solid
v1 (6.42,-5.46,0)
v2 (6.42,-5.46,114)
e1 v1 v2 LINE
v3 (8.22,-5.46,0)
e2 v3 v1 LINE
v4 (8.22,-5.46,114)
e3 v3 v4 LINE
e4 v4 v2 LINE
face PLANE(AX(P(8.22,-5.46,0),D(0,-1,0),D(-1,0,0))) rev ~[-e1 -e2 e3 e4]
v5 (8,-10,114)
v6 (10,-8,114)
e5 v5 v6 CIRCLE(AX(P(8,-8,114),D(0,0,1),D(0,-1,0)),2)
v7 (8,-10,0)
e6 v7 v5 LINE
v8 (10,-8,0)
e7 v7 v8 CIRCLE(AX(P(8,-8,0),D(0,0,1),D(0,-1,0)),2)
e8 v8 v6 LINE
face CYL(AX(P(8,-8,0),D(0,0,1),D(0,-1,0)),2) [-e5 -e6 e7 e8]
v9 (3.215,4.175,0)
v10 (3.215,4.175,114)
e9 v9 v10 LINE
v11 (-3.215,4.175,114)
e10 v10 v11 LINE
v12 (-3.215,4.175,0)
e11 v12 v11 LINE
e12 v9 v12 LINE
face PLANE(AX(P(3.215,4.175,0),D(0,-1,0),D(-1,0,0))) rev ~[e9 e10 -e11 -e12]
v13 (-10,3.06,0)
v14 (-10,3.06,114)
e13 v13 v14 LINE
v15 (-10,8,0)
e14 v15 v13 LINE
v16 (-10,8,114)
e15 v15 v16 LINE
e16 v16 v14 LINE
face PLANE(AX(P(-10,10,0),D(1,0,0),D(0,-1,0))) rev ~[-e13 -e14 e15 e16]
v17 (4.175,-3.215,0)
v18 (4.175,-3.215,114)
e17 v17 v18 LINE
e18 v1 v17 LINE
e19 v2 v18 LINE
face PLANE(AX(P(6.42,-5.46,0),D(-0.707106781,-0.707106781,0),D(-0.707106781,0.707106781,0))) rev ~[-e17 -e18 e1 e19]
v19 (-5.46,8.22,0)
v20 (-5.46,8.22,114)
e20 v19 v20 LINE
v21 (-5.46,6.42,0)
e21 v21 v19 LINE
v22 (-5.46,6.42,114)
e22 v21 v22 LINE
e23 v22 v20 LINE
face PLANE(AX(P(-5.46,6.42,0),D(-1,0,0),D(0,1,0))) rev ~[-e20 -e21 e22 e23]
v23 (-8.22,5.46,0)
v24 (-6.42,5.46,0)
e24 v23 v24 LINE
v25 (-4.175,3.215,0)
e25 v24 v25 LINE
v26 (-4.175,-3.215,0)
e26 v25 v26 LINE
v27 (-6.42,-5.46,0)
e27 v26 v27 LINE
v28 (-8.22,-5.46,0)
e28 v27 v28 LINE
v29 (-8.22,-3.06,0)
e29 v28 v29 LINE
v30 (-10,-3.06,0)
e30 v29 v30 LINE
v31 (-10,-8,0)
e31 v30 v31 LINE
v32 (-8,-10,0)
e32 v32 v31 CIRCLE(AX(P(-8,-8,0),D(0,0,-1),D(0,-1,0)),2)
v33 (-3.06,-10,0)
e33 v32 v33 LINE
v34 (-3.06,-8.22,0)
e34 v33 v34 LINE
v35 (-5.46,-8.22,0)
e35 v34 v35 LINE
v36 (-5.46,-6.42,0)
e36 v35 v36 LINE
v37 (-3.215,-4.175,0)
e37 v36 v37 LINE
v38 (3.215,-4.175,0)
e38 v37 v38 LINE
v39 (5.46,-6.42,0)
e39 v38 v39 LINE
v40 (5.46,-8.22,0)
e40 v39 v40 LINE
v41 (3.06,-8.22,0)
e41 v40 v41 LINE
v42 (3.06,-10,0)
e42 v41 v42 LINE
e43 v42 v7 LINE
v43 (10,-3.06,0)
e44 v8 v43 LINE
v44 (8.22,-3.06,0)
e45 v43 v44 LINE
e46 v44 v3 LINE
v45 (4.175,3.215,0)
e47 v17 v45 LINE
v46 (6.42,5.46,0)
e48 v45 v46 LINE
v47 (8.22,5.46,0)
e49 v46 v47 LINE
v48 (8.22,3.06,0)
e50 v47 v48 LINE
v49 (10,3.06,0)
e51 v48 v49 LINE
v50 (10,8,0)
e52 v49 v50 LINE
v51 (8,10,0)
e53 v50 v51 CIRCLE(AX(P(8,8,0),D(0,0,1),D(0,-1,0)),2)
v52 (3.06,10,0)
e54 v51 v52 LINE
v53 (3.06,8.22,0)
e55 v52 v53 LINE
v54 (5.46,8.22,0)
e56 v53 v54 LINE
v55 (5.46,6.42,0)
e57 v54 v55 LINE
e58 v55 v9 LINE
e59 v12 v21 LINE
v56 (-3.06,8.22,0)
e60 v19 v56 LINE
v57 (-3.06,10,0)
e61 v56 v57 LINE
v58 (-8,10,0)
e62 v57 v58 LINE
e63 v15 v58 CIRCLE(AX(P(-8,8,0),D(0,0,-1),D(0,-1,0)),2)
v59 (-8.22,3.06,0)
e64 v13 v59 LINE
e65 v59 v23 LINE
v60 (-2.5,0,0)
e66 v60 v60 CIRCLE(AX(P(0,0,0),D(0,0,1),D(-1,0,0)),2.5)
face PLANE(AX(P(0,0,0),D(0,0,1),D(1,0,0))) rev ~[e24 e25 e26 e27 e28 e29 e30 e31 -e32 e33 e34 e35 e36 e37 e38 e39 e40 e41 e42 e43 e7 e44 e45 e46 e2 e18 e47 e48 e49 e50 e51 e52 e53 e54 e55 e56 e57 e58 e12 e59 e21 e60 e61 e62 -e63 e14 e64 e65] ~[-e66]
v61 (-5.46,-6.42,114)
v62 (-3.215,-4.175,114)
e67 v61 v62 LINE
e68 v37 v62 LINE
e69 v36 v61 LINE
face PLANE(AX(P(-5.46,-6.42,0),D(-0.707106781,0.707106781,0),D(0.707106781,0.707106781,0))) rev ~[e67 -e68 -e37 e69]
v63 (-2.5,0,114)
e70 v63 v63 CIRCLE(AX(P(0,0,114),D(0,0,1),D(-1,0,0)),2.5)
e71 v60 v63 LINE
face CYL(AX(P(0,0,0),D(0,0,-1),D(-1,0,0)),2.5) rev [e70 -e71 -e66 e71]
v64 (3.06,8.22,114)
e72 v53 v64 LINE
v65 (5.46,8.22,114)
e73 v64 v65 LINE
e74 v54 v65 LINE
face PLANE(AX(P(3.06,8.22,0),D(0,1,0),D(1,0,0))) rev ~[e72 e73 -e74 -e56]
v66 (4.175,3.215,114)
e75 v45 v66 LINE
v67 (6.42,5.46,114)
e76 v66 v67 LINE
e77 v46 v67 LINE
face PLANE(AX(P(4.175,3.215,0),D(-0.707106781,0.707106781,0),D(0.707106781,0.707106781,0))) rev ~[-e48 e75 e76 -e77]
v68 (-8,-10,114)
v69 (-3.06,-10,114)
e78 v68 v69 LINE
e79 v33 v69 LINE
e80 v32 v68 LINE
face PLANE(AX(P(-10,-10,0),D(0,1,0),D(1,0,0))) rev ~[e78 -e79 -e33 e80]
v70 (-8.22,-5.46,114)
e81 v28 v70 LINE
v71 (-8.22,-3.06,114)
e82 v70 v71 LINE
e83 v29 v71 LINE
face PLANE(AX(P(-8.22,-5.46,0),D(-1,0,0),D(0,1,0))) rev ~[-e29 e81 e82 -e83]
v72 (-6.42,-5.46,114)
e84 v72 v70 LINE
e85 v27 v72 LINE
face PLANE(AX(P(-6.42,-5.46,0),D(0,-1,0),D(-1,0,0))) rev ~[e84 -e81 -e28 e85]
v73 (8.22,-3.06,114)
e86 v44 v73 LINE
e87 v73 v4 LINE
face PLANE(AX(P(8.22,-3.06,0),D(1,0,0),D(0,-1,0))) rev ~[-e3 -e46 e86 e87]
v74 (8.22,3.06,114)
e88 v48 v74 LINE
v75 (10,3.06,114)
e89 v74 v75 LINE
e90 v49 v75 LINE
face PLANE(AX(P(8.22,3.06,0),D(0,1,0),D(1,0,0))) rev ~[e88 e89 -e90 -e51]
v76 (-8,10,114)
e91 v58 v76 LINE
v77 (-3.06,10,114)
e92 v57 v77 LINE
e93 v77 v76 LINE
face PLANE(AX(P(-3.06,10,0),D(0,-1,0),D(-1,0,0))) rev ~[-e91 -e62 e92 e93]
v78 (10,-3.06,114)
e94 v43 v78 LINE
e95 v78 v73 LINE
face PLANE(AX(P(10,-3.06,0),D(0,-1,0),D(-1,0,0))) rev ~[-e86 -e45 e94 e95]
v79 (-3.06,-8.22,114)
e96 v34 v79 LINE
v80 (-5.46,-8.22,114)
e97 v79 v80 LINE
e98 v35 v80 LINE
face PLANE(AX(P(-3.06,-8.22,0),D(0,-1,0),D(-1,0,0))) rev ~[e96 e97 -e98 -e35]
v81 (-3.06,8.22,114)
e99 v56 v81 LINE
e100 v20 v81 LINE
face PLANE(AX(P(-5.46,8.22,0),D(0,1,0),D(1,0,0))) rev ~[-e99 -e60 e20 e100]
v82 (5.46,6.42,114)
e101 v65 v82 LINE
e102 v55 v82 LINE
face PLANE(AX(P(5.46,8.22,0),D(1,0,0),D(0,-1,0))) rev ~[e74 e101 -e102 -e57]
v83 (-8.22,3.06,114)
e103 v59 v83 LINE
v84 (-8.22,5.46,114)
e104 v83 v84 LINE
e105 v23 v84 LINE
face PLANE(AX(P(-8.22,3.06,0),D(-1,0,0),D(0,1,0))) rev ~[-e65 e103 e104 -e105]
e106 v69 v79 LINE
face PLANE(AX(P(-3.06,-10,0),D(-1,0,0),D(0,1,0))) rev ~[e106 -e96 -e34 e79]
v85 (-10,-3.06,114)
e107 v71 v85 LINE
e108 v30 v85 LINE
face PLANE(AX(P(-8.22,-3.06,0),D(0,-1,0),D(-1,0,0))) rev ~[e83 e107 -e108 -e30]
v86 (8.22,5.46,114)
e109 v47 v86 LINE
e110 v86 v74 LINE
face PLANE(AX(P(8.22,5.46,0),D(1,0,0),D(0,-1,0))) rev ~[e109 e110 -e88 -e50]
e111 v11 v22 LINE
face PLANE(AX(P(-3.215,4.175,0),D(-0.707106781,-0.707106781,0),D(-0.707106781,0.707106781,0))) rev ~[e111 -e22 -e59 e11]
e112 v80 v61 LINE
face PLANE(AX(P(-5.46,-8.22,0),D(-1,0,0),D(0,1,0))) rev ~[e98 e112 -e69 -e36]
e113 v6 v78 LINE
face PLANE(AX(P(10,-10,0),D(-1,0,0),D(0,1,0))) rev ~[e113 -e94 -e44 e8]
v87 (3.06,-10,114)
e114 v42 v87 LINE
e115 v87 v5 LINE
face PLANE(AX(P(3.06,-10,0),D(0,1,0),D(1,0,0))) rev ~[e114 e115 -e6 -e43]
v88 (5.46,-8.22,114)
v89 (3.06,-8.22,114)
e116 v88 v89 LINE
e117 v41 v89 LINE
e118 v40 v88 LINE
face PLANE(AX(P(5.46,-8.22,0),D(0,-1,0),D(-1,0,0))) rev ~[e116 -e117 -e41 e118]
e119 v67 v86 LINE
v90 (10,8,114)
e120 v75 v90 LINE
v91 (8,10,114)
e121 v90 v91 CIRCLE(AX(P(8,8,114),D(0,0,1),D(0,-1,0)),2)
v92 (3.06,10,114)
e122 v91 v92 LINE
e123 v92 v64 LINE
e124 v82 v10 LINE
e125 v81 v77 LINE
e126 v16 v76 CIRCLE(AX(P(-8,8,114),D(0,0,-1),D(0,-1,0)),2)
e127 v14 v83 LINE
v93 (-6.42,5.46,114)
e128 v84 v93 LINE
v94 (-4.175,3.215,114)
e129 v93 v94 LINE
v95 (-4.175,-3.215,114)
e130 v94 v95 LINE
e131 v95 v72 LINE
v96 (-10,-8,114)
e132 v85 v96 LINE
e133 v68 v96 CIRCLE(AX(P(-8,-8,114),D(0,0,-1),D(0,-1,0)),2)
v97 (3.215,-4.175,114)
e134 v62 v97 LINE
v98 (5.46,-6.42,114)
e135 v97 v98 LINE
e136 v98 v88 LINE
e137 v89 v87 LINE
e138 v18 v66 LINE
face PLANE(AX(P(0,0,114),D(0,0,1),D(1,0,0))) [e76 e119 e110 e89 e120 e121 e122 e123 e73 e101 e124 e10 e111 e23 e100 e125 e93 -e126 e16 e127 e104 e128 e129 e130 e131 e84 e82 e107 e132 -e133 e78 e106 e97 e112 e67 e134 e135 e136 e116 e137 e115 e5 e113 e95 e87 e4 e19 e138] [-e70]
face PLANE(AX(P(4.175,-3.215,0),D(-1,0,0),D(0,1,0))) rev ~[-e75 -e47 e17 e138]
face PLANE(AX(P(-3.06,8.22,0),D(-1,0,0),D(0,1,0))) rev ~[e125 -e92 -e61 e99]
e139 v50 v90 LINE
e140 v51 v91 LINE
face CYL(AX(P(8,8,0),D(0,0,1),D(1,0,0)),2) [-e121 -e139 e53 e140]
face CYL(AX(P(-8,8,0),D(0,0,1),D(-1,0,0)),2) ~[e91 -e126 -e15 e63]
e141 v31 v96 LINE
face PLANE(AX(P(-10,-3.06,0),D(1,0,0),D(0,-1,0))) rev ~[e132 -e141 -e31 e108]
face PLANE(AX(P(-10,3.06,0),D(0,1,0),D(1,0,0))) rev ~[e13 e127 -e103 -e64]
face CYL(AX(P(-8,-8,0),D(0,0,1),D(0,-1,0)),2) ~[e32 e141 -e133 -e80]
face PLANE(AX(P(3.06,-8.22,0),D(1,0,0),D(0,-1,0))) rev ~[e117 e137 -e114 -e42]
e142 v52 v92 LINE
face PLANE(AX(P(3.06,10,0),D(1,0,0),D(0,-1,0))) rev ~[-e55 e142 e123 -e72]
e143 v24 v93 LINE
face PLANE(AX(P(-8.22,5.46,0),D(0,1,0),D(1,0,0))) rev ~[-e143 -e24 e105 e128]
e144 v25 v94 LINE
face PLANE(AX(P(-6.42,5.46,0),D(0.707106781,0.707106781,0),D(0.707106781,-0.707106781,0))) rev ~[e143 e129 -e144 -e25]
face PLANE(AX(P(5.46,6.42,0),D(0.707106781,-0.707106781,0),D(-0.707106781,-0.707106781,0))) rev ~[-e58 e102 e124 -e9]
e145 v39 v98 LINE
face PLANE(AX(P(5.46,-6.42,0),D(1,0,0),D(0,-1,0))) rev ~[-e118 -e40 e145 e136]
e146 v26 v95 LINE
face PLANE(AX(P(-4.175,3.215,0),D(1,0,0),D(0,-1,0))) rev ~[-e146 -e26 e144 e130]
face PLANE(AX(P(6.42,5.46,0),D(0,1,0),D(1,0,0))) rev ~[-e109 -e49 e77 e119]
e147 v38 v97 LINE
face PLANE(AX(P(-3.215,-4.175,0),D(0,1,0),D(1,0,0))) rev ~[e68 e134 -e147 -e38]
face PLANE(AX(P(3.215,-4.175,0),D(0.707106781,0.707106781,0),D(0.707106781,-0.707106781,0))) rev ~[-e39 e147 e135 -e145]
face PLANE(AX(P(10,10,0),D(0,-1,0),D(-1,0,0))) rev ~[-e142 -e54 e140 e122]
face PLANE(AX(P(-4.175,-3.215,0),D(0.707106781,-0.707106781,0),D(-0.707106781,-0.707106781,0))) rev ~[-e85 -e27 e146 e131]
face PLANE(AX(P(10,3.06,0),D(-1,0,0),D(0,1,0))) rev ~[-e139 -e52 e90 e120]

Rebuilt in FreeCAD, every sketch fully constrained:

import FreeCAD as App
import Part
import Sketcher
Q = App.Units.Quantity


def edges_at(feature, points):
    """Names of the edges that pass closest to the given points."""
    edges = feature.Shape.Edges
    near = lambda p: min(range(len(edges)), key=lambda i: edges[i].distToShape(Part.Vertex(*p))[0])
    return sorted({f"Edge{near(p) + 1}" for p in points})


def add_polygon(sketch, points):
    """Adds a closed chain of lines whose ends are joined by coincident constraints."""
    first, n = sketch.GeometryCount, len(points)
    for a, b in zip(points, points[1:] + points[:1]):
        sketch.addGeometry(Part.LineSegment(App.Vector(*a, 0), App.Vector(*b, 0)), False)
    for i in range(n):
        sketch.addConstraint(Sketcher.Constraint("Coincident", first + i, 2, first + (i + 1) % n, 1))

doc = App.newDocument("Part")
body = doc.addObject("PartDesign::Body", "Body")

sketch1 = body.newObject("Sketcher::SketchObject", "Sketch")
sketch1.AttachmentSupport = (doc.getObject("XY_Plane"), [""])
sketch1.MapMode = "FlatFace"
add_polygon(sketch1, [(-5.46, -6.42), (-3.215, -4.175), (3.215, -4.175), (5.46, -6.42), (5.46, -8.22), (3.06, -8.22), (3.06, -10), (10, -10), (10, -3.06), (8.22, -3.06), (8.22, -5.46), (6.42, -5.46), (4.175, -3.215), (4.175, 3.215), (6.42, 5.46), (8.22, 5.46), (8.22, 3.06), (10, 3.06), (10, 10), (3.06, 10), (3.06, 8.22), (5.46, 8.22), (5.46, 6.42), (3.215, 4.175), (-3.215, 4.175), (-5.46, 6.42), (-5.46, 8.22), (-3.06, 8.22), (-3.06, 10), (-10, 10), (-10, 3.06), (-8.22, 3.06), (-8.22, 5.46), (-6.42, 5.46), (-4.175, 3.215), (-4.175, -3.215), (-6.42, -5.46), (-8.22, -5.46), (-8.22, -3.06), (-10, -3.06), (-10, -10), (-3.06, -10), (-3.06, -8.22), (-5.46, -8.22)])
sketch1.addGeometry(Part.Circle(App.Vector(0, 0, 0), App.Vector(0, 0, 1), 2.5), False)
sketch1.addConstraint([
    Sketcher.Constraint("Horizontal", 1),
    Sketcher.Constraint("Vertical", 3),
    Sketcher.Constraint("Horizontal", 4),
    Sketcher.Constraint("Vertical", 5),
    Sketcher.Constraint("Horizontal", 6),
    Sketcher.Constraint("Vertical", 7),
    Sketcher.Constraint("Horizontal", 8),
    Sketcher.Constraint("Vertical", 9),
    Sketcher.Constraint("Horizontal", 10),
    Sketcher.Constraint("Vertical", 12),
    Sketcher.Constraint("Horizontal", 14),
    Sketcher.Constraint("Vertical", 15),
    Sketcher.Constraint("Horizontal", 16),
    Sketcher.Constraint("Vertical", 17),
    Sketcher.Constraint("Horizontal", 18),
    Sketcher.Constraint("Vertical", 19),
    Sketcher.Constraint("Horizontal", 20),
    Sketcher.Constraint("Vertical", 21),
    Sketcher.Constraint("Horizontal", 23),
    Sketcher.Constraint("Vertical", 25),
    Sketcher.Constraint("Horizontal", 26),
    Sketcher.Constraint("Vertical", 27),
    Sketcher.Constraint("Horizontal", 28),
    Sketcher.Constraint("Vertical", 29),
    Sketcher.Constraint("Horizontal", 30),
    Sketcher.Constraint("Vertical", 31),
    Sketcher.Constraint("Horizontal", 32),
    Sketcher.Constraint("Vertical", 34),
    Sketcher.Constraint("Horizontal", 36),
    Sketcher.Constraint("Vertical", 37),
    Sketcher.Constraint("Horizontal", 38),
    Sketcher.Constraint("Vertical", 39),
    Sketcher.Constraint("Horizontal", 40),
    Sketcher.Constraint("Vertical", 41),
    Sketcher.Constraint("Horizontal", 42),
    Sketcher.Constraint("Vertical", 43),
    Sketcher.Constraint("Coincident", 44, 3, -1, 1),
    Sketcher.Constraint("Symmetric", 0, 2, 22, 2, -1, 1),
    Sketcher.Constraint("Symmetric", 2, 2, 24, 2, -1, 1),
    Sketcher.Constraint("Symmetric", 4, 2, 26, 2, -1, 1),
    Sketcher.Constraint("Symmetric", 6, 2, 28, 2, -1, 1),
    Sketcher.Constraint("Symmetric", 8, 2, 30, 2, -1, 1),
    Sketcher.Constraint("Symmetric", 10, 2, 32, 2, -1, 1),
    Sketcher.Constraint("Symmetric", 11, 2, 33, 2, -1, 1),
    Sketcher.Constraint("Symmetric", 13, 2, 35, 2, -1, 1),
    Sketcher.Constraint("Symmetric", 15, 2, 37, 2, -1, 1),
    Sketcher.Constraint("Symmetric", 17, 2, 39, 2, -1, 1),
    Sketcher.Constraint("Symmetric", 19, 2, 41, 2, -1, 1),
    Sketcher.Constraint("Symmetric", 21, 2, 43, 2, -1, 1),
    Sketcher.Constraint("Symmetric", 21, 2, 24, 2, -2),
    Sketcher.Constraint("Symmetric", 19, 2, 26, 2, -2),
    Sketcher.Constraint("Symmetric", 17, 2, 28, 2, -2),
    Sketcher.Constraint("Symmetric", 15, 2, 30, 2, -2),
    Sketcher.Constraint("Symmetric", 13, 2, 32, 2, -2),
    Sketcher.Constraint("Perpendicular", 0, 2),
    Sketcher.Constraint("Parallel", 2, 11),
    Sketcher.Constraint("Perpendicular", 11, 13),
    Sketcher.Constraint("Perpendicular", 22, 24),
    Sketcher.Constraint("Perpendicular", 33, 35),
    Sketcher.Constraint("Horizontal", 12, 2, 33, 2),
    Sketcher.Constraint("Equal", 36, 3),
    Sketcher.Constraint("Equal", 38, 5),
    Sketcher.Constraint("Equal", 40, 7),
    Sketcher.Constraint("Equal", 42, 9),
    Sketcher.Constraint("Equal", 23, 12),
    Sketcher.Constraint("Equal", 2, 11),
    Sketcher.Constraint("Diameter", 44, Q("5 mm")),
    Sketcher.Constraint("DistanceX", 4, 2, 4, 1, Q("2.4 mm")),
    Sketcher.Constraint("DistanceX", 10, 2, 10, 1, Q("1.8 mm")),
    Sketcher.Constraint("DistanceY", 5, 2, -1, 1, Q("10 mm")),
    Sketcher.Constraint("DistanceX", 1, 1, 1, 2, Q("6.43 mm")),
    Sketcher.Constraint("DistanceX", 6, 1, 6, 2, Q("6.94 mm")),
    Sketcher.Constraint("DistanceX", 8, 2, 8, 1, Q("1.78 mm")),
])
pad1 = body.newObject("PartDesign::Pad", "Pad")
pad1.Profile = sketch1
pad1.Length = 114
doc.recompute()

fillet = body.newObject("PartDesign::Fillet", "Fillet")
fillet.Base = (pad1, edges_at(pad1, [
    (10, -10, 57),
    (-10, -10, 57),
    (-10, 10, 57),
    (10, 10, 57),
]))
fillet.Radius = 2

doc.recompute()
